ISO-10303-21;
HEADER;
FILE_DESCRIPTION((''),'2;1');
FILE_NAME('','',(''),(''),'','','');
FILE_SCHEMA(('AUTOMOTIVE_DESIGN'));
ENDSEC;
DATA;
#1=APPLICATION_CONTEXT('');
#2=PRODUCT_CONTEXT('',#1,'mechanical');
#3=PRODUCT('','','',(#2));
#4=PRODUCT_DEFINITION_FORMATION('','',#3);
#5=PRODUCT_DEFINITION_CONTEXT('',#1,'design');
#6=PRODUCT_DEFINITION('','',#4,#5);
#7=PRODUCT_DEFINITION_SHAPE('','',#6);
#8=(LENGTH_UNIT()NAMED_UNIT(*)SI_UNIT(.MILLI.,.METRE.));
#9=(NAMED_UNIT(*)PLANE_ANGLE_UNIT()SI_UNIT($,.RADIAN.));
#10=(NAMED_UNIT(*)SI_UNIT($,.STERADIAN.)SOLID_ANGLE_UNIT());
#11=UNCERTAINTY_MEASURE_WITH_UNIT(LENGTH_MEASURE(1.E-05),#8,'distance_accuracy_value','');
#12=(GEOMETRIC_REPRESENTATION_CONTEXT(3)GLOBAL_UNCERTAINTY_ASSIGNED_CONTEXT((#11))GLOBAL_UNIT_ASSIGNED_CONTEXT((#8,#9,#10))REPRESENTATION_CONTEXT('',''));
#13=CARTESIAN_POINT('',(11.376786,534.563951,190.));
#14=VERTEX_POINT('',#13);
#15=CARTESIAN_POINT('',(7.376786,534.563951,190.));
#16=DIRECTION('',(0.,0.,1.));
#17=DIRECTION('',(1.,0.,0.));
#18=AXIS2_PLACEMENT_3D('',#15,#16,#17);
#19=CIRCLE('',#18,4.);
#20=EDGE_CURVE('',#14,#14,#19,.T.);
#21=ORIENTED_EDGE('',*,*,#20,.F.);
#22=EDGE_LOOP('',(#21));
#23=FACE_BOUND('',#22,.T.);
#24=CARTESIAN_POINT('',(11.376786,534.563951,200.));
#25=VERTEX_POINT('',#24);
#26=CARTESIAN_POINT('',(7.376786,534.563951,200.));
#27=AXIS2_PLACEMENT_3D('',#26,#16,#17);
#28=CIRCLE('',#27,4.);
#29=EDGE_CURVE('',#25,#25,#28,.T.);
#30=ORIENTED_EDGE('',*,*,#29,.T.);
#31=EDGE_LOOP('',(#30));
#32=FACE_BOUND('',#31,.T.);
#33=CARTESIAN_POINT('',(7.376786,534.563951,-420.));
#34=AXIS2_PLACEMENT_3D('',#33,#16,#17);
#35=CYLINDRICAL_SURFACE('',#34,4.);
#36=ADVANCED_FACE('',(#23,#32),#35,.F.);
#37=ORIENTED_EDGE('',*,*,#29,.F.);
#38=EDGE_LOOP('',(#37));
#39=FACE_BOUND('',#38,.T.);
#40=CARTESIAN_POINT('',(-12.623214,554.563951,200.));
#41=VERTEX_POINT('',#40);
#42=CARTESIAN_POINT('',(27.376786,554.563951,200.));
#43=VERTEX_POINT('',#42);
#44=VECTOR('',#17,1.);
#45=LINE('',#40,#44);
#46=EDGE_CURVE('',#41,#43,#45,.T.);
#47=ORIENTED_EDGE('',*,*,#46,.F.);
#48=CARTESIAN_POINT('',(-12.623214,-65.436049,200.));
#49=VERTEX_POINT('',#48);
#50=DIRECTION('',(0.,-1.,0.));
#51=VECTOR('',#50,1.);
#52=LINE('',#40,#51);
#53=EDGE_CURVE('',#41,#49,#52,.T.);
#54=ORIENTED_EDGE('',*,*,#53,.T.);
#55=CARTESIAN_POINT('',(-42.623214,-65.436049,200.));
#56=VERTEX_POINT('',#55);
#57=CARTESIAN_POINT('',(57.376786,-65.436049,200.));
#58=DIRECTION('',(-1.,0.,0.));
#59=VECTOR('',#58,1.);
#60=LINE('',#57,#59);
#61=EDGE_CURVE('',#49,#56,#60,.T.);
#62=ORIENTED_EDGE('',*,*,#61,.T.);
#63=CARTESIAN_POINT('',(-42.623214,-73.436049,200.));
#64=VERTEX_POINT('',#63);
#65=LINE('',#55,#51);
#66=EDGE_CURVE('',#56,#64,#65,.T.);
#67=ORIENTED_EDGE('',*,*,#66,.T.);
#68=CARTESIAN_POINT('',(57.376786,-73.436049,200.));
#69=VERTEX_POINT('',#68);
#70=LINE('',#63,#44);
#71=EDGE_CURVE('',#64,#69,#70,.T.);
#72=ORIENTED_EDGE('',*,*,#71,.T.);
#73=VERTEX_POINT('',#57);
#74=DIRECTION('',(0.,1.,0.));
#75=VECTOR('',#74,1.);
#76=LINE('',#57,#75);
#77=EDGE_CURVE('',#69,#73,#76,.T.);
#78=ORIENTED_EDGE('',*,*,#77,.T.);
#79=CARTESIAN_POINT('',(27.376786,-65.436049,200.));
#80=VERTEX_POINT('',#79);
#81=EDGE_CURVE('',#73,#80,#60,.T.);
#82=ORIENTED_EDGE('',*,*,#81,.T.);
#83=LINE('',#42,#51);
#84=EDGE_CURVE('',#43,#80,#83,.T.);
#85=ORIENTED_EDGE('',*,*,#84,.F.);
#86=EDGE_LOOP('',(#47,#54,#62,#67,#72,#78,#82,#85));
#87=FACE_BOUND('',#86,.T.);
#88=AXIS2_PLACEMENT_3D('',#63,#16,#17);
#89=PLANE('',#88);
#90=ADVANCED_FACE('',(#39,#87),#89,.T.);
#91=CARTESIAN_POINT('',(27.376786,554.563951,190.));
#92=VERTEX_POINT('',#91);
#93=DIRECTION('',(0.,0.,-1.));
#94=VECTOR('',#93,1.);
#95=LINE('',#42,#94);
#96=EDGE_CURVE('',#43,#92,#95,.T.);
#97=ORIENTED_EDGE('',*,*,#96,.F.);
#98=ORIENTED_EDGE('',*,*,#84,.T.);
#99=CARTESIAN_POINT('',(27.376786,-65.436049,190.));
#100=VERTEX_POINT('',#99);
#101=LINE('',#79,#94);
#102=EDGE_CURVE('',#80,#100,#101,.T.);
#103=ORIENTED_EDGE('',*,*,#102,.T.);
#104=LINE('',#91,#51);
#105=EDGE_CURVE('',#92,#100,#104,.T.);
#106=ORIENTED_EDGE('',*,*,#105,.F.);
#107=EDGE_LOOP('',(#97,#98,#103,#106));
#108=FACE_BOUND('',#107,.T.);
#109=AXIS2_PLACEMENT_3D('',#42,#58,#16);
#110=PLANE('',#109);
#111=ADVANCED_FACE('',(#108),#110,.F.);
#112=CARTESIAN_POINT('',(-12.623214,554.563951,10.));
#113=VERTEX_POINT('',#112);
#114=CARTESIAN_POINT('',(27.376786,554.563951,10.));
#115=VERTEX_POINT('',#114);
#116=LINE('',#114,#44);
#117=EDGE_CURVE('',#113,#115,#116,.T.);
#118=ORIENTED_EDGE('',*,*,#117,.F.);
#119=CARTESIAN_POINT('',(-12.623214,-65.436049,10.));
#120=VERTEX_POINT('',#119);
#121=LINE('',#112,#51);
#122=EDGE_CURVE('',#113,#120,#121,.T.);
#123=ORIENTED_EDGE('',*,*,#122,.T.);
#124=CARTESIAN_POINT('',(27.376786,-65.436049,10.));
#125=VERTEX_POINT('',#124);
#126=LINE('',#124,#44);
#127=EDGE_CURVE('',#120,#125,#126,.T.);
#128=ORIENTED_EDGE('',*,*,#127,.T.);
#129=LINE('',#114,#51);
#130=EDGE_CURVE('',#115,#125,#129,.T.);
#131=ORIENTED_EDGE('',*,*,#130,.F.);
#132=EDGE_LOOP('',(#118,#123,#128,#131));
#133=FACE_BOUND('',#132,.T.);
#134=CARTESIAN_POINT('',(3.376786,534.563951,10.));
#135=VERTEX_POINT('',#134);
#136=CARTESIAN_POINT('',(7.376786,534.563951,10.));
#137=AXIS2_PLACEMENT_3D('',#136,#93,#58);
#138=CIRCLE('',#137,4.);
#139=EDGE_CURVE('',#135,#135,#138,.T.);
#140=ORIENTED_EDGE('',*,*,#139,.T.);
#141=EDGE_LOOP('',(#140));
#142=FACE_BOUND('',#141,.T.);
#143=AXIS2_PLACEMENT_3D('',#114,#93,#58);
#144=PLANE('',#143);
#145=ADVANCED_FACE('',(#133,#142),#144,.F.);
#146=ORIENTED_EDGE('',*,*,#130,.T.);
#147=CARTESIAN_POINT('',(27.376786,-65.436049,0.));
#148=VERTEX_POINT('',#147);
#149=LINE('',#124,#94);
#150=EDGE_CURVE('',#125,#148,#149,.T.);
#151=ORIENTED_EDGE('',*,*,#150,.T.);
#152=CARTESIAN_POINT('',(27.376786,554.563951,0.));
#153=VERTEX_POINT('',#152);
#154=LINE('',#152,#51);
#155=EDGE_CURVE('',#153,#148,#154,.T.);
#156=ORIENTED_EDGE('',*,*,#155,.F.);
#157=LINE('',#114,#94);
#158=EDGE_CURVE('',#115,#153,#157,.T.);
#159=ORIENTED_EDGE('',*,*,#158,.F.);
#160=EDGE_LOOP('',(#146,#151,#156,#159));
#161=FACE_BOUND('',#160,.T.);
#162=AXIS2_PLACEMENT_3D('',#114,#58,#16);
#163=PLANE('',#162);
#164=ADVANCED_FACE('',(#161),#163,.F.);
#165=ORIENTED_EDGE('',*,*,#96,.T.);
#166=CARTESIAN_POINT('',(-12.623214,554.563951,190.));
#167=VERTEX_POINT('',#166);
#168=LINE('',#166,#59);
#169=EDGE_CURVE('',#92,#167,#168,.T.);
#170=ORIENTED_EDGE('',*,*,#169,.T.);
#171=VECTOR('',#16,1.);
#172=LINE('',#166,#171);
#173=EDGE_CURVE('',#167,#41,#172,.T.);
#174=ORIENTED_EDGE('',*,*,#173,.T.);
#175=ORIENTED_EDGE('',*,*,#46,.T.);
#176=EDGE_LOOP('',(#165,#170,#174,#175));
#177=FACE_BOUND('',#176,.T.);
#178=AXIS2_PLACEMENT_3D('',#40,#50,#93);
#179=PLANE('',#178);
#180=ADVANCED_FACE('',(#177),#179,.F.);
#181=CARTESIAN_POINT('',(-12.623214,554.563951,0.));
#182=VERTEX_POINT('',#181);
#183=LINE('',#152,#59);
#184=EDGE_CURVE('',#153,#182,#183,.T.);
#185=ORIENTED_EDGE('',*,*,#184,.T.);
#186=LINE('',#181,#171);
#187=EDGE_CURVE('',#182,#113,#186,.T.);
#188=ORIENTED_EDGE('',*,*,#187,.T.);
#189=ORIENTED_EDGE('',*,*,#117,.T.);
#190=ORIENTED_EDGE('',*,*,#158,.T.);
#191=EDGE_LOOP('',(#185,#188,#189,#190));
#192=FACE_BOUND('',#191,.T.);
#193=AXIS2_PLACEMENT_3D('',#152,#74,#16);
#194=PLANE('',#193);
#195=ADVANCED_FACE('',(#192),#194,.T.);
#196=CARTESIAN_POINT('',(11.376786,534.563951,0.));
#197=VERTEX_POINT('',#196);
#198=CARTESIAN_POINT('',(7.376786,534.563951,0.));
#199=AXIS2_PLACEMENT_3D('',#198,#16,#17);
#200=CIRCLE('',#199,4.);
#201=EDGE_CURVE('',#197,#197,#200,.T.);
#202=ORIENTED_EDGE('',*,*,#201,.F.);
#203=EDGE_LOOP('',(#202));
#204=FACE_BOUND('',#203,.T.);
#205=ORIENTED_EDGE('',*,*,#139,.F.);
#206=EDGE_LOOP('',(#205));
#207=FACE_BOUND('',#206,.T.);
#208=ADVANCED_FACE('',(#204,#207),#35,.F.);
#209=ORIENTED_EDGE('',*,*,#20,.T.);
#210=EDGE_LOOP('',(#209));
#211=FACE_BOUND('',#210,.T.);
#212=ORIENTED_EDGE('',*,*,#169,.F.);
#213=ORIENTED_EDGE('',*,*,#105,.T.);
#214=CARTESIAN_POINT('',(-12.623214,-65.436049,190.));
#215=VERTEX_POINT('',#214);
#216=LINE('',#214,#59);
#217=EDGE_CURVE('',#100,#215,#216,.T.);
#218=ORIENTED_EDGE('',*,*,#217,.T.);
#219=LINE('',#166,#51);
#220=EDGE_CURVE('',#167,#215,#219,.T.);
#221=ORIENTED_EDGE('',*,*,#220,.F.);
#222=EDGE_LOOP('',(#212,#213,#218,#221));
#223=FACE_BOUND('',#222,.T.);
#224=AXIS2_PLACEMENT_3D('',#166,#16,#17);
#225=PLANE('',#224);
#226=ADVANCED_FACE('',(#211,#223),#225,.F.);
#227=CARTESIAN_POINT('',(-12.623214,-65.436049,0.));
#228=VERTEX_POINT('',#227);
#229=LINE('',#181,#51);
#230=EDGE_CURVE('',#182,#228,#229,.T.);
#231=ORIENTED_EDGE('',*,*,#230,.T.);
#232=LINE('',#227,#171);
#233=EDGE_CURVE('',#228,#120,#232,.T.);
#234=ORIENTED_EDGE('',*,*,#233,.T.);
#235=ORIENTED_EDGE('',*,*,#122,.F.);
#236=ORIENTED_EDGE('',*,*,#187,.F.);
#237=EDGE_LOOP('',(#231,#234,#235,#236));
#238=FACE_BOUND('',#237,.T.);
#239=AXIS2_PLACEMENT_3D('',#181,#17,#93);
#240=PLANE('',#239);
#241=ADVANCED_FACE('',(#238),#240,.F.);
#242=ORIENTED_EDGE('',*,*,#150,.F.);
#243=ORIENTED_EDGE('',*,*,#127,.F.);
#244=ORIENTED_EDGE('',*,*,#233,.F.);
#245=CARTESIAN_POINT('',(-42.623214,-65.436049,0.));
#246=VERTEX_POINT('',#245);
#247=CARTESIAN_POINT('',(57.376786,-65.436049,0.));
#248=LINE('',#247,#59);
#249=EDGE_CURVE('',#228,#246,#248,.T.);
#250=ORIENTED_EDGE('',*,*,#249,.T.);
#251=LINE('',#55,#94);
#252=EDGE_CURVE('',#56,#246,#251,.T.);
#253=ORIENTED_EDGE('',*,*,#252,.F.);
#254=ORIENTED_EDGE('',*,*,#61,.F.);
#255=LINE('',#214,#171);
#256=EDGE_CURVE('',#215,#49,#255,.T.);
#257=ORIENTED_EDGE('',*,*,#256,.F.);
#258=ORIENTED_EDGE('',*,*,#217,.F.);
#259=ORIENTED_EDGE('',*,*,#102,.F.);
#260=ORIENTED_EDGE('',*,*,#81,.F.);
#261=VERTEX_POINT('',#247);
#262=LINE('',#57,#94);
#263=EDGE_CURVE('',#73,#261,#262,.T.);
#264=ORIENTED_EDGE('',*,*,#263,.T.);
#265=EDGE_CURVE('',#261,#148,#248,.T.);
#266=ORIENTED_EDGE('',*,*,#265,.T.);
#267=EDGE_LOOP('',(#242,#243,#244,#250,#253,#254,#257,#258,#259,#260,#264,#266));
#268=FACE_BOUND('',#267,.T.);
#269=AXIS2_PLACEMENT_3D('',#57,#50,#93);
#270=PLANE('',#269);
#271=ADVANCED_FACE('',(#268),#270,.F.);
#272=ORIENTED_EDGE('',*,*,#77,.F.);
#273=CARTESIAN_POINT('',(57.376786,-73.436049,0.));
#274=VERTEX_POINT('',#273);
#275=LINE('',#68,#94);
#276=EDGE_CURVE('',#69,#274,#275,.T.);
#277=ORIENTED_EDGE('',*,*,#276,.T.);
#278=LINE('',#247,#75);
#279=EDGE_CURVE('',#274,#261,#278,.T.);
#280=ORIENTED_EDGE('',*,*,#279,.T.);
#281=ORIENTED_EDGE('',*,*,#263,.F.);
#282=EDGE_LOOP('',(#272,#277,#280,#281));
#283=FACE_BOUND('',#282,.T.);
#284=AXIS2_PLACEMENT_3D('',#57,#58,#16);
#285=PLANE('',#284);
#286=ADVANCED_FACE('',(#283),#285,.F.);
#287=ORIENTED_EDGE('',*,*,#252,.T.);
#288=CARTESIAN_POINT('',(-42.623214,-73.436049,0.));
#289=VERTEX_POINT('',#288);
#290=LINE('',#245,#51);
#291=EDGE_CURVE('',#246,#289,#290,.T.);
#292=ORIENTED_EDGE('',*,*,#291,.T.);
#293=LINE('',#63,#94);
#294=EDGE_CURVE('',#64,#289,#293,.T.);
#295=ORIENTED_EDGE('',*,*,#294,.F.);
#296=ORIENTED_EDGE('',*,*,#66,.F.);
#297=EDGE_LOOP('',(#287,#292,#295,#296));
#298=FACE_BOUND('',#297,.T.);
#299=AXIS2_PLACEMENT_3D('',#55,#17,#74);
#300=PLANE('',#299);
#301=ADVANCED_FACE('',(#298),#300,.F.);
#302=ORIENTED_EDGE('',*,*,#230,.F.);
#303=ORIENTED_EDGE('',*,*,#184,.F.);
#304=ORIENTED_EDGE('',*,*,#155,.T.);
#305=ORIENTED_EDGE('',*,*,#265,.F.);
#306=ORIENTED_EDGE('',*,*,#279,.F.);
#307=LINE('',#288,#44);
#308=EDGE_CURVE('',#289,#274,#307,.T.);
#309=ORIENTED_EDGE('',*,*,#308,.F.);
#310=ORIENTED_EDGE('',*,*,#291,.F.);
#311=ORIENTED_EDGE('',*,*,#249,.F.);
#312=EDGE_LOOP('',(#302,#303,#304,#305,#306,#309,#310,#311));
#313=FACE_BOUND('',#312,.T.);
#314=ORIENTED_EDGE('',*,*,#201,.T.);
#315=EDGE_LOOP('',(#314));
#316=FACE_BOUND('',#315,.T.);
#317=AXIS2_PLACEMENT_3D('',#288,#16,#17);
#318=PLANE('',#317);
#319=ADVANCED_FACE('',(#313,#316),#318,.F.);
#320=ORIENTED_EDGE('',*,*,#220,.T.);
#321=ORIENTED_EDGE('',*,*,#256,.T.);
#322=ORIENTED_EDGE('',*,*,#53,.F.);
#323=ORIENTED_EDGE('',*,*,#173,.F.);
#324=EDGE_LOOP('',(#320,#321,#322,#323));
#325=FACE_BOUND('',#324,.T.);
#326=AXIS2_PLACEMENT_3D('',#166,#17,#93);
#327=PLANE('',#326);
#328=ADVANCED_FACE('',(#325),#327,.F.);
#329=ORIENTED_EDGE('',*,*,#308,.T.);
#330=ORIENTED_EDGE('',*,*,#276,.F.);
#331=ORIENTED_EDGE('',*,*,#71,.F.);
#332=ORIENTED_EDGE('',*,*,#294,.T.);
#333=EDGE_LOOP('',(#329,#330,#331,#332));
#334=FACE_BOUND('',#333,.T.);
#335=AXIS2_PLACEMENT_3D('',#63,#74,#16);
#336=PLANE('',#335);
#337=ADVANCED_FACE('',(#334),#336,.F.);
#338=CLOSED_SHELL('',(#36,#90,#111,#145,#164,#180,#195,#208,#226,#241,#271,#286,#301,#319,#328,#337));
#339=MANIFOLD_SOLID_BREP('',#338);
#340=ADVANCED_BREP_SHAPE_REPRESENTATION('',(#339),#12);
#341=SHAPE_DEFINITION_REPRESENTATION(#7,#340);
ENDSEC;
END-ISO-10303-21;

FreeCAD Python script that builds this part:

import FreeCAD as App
import Part
import Sketcher
Q = App.Units.Quantity

doc = App.newDocument("Part")
body = doc.addObject("PartDesign::Body", "Body")

# Sketch on XY plane
sketch1 = doc.addObject("Sketcher::SketchObject", "Sketch")
body.addObject(sketch1)
sketch1.AttachmentSupport = (doc.XY_Plane, [""])
sketch1.MapMode = "FlatFace"
sketch1.addGeometry([
    Part.LineSegment(App.Vector(-43, -65, 0), App.Vector(-43, -73, 0)),
    Part.LineSegment(App.Vector(-43, -73, 0), App.Vector(57, -73, 0)),
    Part.LineSegment(App.Vector(57, -73, 0), App.Vector(57, -65, 0)),
    Part.LineSegment(App.Vector(57, -65, 0), App.Vector(-43, -65, 0)),
], False)
sketch1.addConstraint([
    Sketcher.Constraint("Coincident", 0, 2, 1, 1),
    Sketcher.Constraint("Coincident", 1, 2, 2, 1),
    Sketcher.Constraint("Coincident", 2, 2, 3, 1),
    Sketcher.Constraint("Coincident", 3, 2, 0, 1),
    Sketcher.Constraint("Vertical", 0),
    Sketcher.Constraint("Horizontal", 1),
    Sketcher.Constraint("Vertical", 2),
    Sketcher.Constraint("Horizontal", 3),
    Sketcher.Constraint("DistanceX", 1, 1, 1, 2, Q("100 mm")),
    Sketcher.Constraint("DistanceY", 0, 2, 0, 1, Q("8 mm")),
    Sketcher.Constraint("DistanceY", 0, 2, -1, 1, Q("73.436049 mm")),
    Sketcher.Constraint("DistanceX", 0, 2, -1, 1, Q("42.623214 mm")),
])
pad1 = doc.addObject("PartDesign::Pad", "Pad")
body.addObject(pad1)
pad1.Profile = sketch1
pad1.Length = 200

# Sketch on XZ plane
sketch2 = doc.addObject("Sketcher::SketchObject", "Sketch001")
body.addObject(sketch2)
sketch2.AttachmentSupport = (doc.XZ_Plane, [""])
sketch2.MapMode = "FlatFace"
sketch2.AttachmentOffset = App.Placement(App.Vector(0, 0, 65.436049), App.Rotation())
sketch2.addGeometry([
    Part.LineSegment(App.Vector(-13, 190, 0), App.Vector(-13, 200, 0)),  # 0
    Part.LineSegment(App.Vector(-13, 200, 0), App.Vector(27, 200, 0)),  # 1
    Part.LineSegment(App.Vector(27, 200, 0), App.Vector(27, 190, 0)),  # 2
    Part.LineSegment(App.Vector(27, 190, 0), App.Vector(-13, 190, 0)),  # 3
    Part.LineSegment(App.Vector(-13, 0, 0), App.Vector(-13, 10, 0)),  # 4
    Part.LineSegment(App.Vector(-13, 10, 0), App.Vector(27, 10, 0)),  # 5
    Part.LineSegment(App.Vector(27, 10, 0), App.Vector(27, 0, 0)),  # 6
    Part.LineSegment(App.Vector(27, 0, 0), App.Vector(-13, 0, 0)),  # 7
], False)
sketch2.addConstraint([
    Sketcher.Constraint("Coincident", 0, 2, 1, 1),
    Sketcher.Constraint("Coincident", 1, 2, 2, 1),
    Sketcher.Constraint("Coincident", 2, 2, 3, 1),
    Sketcher.Constraint("Coincident", 3, 2, 0, 1),
    Sketcher.Constraint("Coincident", 4, 2, 5, 1),
    Sketcher.Constraint("Coincident", 5, 2, 6, 1),
    Sketcher.Constraint("Coincident", 6, 2, 7, 1),
    Sketcher.Constraint("Coincident", 7, 2, 4, 1),
    Sketcher.Constraint("Vertical", 0),
    Sketcher.Constraint("Horizontal", 1),
    Sketcher.Constraint("Vertical", 2),
    Sketcher.Constraint("Horizontal", 3),
    Sketcher.Constraint("Vertical", 4),
    Sketcher.Constraint("Horizontal", 5),
    Sketcher.Constraint("Vertical", 6),
    Sketcher.Constraint("Horizontal", 7),
    Sketcher.Constraint("PointOnObject", 6, 2, -1),
    Sketcher.Constraint("Vertical", 3, 2, 4, 2),
    Sketcher.Constraint("Vertical", 2, 2, 5, 2),
    Sketcher.Constraint("Equal", 2, 4),
    Sketcher.Constraint("DistanceX", 1, 1, 1, 2, Q("40 mm")),
    Sketcher.Constraint("DistanceY", 0, 1, 0, 2, Q("10 mm")),
    Sketcher.Constraint("DistanceY", -1, 1, 0, 2, Q("200 mm")),
    Sketcher.Constraint("DistanceX", 0, 2, -1, 1, Q("12.623214 mm")),
])
pad2 = doc.addObject("PartDesign::Pad", "Pad001")
body.addObject(pad2)
pad2.Profile = sketch2
pad2.Length = 620
pad2.Reversed = True

# Sketch on XY plane
sketch3 = doc.addObject("Sketcher::SketchObject", "Sketch002")
body.addObject(sketch3)
sketch3.AttachmentSupport = (doc.XY_Plane, [""])
sketch3.MapMode = "FlatFace"
sketch3.AttachmentOffset = App.Placement(App.Vector(0, 0, 200), App.Rotation())
sketch3.addGeometry(Part.Circle(App.Vector(7.4, 534.6, 0), App.Vector(0, 0, 1), 4), False)
sketch3.addConstraint([
    Sketcher.Constraint("Diameter", 0, Q("8 mm")),
    Sketcher.Constraint("DistanceY", -1, 1, 0, 3, Q("534.563951 mm")),
    Sketcher.Constraint("DistanceX", -1, 1, 0, 3, Q("7.376786 mm")),
])
pocket1 = doc.addObject("PartDesign::Pocket", "Pocket")
body.addObject(pocket1)
pocket1.Profile = sketch3
pocket1.Length = 620

doc.recompute()
